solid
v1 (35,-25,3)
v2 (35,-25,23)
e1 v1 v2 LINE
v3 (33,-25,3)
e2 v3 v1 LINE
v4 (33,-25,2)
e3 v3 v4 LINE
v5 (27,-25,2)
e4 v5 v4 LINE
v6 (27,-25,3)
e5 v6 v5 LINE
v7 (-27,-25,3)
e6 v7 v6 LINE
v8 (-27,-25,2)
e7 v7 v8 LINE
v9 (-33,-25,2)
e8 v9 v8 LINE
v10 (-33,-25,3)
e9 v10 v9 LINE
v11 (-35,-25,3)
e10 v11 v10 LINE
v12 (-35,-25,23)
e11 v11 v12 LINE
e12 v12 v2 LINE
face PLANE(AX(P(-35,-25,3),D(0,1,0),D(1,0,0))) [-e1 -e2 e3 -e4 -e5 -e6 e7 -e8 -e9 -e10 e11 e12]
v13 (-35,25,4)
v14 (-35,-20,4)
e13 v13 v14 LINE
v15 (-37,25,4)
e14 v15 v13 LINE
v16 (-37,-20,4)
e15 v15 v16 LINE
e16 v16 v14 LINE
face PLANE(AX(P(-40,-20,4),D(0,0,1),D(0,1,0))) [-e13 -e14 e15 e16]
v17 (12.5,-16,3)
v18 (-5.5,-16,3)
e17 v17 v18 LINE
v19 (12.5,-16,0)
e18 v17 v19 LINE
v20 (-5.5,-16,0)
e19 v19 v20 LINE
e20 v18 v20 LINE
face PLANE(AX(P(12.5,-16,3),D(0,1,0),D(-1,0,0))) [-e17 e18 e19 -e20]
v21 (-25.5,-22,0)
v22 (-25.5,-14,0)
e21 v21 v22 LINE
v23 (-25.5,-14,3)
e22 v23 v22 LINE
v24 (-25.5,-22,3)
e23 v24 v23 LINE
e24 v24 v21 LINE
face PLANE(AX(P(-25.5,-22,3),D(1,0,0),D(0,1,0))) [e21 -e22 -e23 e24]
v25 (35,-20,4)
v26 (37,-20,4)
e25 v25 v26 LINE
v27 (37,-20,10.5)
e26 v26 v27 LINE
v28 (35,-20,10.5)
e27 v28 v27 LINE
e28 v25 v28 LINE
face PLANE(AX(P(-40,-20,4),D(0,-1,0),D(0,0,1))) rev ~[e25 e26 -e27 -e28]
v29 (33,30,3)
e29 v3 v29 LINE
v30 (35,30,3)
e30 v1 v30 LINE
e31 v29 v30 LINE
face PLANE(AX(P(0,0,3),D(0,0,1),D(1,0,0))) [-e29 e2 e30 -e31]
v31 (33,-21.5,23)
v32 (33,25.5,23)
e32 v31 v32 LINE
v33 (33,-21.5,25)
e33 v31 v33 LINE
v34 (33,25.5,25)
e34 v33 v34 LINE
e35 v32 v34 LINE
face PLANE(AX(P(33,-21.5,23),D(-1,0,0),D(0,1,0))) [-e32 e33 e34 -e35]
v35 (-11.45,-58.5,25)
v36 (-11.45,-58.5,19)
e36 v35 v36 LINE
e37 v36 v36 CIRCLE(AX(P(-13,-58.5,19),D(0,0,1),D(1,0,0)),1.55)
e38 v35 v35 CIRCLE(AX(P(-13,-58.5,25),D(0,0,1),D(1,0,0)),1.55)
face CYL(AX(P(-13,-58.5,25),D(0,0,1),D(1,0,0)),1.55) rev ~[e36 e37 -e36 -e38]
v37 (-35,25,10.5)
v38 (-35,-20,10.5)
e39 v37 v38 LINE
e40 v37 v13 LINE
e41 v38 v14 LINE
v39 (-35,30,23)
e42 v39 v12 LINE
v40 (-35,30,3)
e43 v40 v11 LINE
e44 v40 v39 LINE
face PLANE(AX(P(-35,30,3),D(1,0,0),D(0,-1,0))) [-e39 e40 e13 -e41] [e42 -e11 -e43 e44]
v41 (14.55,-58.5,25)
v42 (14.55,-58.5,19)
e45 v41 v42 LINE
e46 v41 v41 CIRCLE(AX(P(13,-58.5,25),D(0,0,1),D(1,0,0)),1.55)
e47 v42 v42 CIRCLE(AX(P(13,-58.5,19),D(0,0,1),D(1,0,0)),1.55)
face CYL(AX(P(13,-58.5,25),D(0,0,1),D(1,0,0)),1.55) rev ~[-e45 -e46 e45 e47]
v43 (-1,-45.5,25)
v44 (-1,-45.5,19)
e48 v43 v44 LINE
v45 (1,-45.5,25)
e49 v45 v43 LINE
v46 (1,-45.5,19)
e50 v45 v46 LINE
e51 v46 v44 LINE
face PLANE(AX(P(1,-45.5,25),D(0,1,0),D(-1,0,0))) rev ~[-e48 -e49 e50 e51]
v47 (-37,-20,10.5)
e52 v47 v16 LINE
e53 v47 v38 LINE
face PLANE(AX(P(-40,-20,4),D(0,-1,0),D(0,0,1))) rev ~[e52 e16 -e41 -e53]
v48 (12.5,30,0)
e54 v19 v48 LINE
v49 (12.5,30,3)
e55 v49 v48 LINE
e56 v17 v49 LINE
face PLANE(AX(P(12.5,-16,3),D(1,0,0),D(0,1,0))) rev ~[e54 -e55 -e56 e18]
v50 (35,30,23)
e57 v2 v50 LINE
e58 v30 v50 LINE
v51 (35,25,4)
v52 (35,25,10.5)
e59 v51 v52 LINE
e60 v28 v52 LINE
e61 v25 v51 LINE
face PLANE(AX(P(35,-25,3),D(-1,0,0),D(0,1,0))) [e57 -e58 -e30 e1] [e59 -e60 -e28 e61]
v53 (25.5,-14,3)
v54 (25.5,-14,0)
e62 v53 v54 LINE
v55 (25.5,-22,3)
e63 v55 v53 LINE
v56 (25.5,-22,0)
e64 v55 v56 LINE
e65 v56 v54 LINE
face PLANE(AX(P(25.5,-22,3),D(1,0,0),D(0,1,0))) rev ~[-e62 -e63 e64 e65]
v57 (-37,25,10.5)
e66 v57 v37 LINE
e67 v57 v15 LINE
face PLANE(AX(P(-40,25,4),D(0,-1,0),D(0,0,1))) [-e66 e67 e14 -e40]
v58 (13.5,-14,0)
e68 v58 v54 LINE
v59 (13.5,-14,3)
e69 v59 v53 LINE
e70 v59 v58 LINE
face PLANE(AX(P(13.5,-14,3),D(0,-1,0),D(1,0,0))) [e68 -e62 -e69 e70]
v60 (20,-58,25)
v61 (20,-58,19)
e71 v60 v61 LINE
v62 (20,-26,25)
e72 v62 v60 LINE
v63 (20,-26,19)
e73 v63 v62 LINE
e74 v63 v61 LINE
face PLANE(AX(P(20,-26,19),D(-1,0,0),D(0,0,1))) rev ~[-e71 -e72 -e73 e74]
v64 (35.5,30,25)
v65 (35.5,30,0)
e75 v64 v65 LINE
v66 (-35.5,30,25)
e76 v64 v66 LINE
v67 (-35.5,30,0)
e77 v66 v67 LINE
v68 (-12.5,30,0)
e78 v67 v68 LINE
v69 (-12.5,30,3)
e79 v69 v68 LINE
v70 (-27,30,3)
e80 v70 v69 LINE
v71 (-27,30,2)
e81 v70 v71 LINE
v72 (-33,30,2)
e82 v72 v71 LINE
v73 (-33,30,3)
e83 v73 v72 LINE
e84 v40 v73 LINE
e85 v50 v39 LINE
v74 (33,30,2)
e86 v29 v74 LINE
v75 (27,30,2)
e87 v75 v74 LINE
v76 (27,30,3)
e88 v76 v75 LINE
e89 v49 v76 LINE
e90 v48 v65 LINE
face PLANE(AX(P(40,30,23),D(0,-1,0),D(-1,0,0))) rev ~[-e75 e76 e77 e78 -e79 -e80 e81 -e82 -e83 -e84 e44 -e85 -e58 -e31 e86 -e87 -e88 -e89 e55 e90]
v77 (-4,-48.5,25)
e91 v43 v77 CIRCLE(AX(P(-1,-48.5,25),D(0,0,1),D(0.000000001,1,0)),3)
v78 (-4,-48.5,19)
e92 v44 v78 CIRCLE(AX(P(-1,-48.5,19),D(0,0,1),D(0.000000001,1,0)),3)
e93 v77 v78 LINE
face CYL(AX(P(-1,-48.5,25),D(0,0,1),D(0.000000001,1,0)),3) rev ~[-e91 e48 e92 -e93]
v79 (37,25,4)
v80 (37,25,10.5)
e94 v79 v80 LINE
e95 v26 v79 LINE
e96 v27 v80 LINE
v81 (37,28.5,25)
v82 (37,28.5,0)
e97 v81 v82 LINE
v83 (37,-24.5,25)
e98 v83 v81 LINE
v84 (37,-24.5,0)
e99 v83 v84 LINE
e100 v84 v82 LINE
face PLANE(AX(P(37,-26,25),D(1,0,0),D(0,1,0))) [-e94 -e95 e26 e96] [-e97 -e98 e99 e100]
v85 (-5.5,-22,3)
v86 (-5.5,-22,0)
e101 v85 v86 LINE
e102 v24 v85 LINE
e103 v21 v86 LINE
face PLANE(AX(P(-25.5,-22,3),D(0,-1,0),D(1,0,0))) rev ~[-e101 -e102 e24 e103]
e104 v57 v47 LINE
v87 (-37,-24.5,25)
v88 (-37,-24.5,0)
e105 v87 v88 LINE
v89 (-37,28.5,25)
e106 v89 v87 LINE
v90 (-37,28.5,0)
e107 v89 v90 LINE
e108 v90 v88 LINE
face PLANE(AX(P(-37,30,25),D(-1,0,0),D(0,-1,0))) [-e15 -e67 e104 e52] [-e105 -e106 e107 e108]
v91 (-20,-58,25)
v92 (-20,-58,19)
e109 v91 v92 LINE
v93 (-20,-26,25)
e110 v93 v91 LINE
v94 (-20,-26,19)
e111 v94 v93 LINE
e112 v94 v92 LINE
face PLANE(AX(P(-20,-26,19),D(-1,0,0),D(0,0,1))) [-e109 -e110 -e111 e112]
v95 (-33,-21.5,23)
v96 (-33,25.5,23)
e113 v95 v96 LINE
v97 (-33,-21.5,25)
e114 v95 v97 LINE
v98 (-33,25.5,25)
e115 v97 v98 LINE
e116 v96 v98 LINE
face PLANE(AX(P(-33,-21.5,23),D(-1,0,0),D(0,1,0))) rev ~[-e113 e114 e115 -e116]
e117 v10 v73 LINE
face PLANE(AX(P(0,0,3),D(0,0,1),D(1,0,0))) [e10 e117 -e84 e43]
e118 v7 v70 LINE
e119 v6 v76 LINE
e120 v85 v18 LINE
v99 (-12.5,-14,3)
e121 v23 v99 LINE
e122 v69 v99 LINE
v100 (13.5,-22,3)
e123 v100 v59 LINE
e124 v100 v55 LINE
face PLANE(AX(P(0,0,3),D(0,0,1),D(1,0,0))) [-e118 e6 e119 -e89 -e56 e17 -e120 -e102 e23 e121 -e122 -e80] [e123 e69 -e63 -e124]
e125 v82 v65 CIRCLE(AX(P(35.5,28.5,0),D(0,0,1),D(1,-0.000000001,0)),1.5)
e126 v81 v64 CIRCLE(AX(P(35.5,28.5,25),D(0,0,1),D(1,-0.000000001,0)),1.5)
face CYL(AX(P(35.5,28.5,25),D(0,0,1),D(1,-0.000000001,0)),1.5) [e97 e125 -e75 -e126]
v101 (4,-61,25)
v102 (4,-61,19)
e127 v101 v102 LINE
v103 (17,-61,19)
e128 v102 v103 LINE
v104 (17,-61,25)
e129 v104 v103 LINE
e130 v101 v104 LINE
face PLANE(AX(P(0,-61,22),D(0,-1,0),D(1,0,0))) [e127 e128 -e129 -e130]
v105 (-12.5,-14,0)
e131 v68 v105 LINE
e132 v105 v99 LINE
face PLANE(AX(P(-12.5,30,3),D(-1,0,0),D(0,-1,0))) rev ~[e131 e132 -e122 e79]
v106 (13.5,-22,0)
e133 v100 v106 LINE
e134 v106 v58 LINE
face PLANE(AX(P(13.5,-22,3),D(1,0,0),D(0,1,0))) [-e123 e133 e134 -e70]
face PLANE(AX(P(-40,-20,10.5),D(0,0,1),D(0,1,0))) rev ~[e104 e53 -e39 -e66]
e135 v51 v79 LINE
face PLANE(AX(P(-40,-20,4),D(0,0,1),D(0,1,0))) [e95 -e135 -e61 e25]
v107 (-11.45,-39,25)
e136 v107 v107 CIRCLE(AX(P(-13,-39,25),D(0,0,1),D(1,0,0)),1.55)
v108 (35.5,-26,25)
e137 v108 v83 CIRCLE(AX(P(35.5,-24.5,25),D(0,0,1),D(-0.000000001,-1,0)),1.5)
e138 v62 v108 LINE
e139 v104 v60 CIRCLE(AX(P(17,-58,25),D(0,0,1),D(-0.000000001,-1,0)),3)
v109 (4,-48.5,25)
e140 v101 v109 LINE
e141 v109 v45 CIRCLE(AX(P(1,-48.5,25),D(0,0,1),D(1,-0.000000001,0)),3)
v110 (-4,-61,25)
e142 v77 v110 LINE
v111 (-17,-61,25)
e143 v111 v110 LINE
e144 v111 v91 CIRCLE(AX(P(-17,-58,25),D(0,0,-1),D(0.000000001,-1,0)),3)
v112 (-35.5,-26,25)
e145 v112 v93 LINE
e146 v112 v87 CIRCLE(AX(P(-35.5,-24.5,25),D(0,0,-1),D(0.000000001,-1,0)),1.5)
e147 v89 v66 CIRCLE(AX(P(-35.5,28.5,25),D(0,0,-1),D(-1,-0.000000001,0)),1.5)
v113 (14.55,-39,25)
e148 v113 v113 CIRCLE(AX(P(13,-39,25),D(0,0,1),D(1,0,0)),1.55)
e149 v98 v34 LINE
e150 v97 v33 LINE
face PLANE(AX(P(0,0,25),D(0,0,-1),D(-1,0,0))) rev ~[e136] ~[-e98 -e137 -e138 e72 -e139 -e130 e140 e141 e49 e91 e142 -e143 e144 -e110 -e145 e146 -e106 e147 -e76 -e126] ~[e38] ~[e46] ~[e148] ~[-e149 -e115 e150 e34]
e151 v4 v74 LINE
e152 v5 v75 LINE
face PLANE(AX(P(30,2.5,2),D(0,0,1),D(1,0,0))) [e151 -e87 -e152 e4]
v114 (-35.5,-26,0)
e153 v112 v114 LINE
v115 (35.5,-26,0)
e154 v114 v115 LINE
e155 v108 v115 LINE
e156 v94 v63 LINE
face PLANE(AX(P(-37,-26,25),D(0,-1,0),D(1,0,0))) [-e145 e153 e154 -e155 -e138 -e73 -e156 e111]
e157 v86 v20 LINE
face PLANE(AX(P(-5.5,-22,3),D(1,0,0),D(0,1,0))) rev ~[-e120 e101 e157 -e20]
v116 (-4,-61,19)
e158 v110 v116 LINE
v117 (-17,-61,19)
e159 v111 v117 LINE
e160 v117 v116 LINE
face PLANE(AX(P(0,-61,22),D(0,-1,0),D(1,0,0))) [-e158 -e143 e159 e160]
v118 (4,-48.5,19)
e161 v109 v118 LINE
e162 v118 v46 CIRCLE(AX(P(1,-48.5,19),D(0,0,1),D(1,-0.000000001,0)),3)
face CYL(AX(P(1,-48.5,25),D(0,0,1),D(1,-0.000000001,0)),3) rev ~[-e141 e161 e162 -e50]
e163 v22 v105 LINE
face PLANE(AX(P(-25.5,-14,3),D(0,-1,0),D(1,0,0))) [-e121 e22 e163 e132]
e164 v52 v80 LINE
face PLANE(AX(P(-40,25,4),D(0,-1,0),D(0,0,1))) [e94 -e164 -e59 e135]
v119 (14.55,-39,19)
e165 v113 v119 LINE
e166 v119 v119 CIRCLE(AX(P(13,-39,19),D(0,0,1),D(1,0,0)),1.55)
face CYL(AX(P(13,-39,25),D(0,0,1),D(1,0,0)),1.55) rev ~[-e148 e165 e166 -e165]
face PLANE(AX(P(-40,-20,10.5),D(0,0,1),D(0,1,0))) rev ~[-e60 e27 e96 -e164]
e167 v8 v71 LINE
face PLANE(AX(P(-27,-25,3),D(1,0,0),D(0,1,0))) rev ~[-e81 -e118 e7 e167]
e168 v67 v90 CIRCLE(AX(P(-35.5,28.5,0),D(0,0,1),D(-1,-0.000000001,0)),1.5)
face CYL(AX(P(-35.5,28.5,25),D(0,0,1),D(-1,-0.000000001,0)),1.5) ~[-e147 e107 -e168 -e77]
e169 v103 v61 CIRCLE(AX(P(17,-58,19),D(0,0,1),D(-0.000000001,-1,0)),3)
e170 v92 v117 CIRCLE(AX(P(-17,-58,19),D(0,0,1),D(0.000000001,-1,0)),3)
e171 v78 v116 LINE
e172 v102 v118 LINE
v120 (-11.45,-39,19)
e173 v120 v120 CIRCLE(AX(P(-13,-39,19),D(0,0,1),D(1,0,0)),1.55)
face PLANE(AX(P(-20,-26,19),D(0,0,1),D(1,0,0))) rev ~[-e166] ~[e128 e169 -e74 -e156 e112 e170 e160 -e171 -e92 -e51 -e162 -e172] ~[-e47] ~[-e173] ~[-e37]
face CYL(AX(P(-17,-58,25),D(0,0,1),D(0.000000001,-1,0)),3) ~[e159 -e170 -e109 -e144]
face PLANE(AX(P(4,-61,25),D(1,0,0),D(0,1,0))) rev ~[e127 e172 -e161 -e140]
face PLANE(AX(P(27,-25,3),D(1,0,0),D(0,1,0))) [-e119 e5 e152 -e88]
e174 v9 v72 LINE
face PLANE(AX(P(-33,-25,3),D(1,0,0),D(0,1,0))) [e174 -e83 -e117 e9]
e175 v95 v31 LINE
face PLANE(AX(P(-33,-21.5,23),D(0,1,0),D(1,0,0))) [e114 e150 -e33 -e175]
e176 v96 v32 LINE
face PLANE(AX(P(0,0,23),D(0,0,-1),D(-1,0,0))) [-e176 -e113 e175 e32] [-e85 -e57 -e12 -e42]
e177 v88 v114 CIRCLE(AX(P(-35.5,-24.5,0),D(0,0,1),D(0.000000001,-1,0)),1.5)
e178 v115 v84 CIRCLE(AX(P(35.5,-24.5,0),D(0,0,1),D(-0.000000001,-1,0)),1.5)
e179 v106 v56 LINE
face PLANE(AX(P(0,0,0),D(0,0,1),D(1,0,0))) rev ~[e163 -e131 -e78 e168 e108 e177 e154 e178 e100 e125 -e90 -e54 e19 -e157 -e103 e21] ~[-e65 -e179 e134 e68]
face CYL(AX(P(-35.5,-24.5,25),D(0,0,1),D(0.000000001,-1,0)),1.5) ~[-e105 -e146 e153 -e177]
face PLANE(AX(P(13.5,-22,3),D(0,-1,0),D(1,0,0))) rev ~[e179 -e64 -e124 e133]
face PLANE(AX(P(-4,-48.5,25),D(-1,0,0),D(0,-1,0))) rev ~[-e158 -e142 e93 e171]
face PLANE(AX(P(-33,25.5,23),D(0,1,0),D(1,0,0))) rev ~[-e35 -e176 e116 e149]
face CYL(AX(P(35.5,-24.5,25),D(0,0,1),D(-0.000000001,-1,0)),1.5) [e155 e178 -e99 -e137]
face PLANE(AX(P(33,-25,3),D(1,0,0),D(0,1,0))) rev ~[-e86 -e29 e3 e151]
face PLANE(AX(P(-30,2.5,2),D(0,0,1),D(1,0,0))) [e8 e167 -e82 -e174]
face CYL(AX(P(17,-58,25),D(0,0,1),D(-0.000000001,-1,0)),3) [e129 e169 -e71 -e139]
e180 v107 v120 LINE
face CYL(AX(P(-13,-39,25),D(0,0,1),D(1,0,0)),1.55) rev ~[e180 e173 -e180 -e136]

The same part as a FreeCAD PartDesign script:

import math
import FreeCAD as App
import Part
import Sketcher

doc = App.newDocument("Part")
body = doc.addObject("PartDesign::Body", "Body")

sketch1 = body.newObject("Sketcher::SketchObject", "Sketch")
sketch1.AttachmentSupport = (doc.getObject("XY_Plane"), [""])
sketch1.MapMode = "FlatFace"
sketch1.addGeometry([
    Part.LineSegment(App.Vector(-40, 30, 0), App.Vector(-40, -30, 0)),
    Part.LineSegment(App.Vector(-40, -30, 0), App.Vector(40, -30, 0)),
    Part.LineSegment(App.Vector(40, -30, 0), App.Vector(40, 30, 0)),
    Part.LineSegment(App.Vector(40, 30, 0), App.Vector(-40, 30, 0)),
], False)
sketch1.addConstraint([
    Sketcher.Constraint("Coincident", 0, 2, 1, 1),
    Sketcher.Constraint("Coincident", 1, 2, 2, 1),
    Sketcher.Constraint("Coincident", 2, 2, 3, 1),
    Sketcher.Constraint("Coincident", 3, 2, 0, 1),
    Sketcher.Constraint("Vertical", 0),
    Sketcher.Constraint("Horizontal", 1),
    Sketcher.Constraint("Vertical", 2),
    Sketcher.Constraint("Horizontal", 3),
    Sketcher.Constraint("Symmetric", 0, 2, 2, 2, -1, 1),
    Sketcher.Constraint("DistanceX", 1, 1, 1, 2, 80.0),
    Sketcher.Constraint("DistanceY", 0, 2, 0, 1, 60.0),
])
pad1 = body.newObject("PartDesign::Pad", "Pad")
pad1.Profile = sketch1
pad1.Length = 3

sketch2 = body.newObject("Sketcher::SketchObject", "Sketch001")
sketch2.AttachmentSupport = (doc.getObject("XY_Plane"), [""])
sketch2.MapMode = "FlatFace"
sketch2.AttachmentOffset = App.Placement(App.Vector(0, 0, 3), App.Rotation())
sketch2.addGeometry([
    Part.LineSegment(App.Vector(-12.5, 30, 0), App.Vector(-12.5, -16, 0)),
    Part.LineSegment(App.Vector(-12.5, -16, 0), App.Vector(12.5, -16, 0)),
    Part.LineSegment(App.Vector(12.5, -16, 0), App.Vector(12.5, 30, 0)),
    Part.LineSegment(App.Vector(12.5, 30, 0), App.Vector(-12.5, 30, 0)),
], False)
sketch2.addConstraint([
    Sketcher.Constraint("Coincident", 0, 2, 1, 1),
    Sketcher.Constraint("Coincident", 1, 2, 2, 1),
    Sketcher.Constraint("Coincident", 2, 2, 3, 1),
    Sketcher.Constraint("Coincident", 3, 2, 0, 1),
    Sketcher.Constraint("Vertical", 0),
    Sketcher.Constraint("Horizontal", 1),
    Sketcher.Constraint("Vertical", 2),
    Sketcher.Constraint("Horizontal", 3),
    Sketcher.Constraint("DistanceX", 1, 1, 1, 2, 25.0),
    Sketcher.Constraint("DistanceY", 0, 2, 0, 1, 46.0),
    Sketcher.Constraint("DistanceY", 0, 2, -1, 1, 16.0),
    Sketcher.Constraint("DistanceX", 0, 2, -1, 1, 12.5),
])
pocket1 = body.newObject("PartDesign::Pocket", "Pocket")
pocket1.Profile = sketch2
pocket1.Length = 3

sketch3 = body.newObject("Sketcher::SketchObject", "Sketch002")
sketch3.AttachmentSupport = (doc.getObject("XY_Plane"), [""])
sketch3.MapMode = "FlatFace"
sketch3.AttachmentOffset = App.Placement(App.Vector(0, 0, 3), App.Rotation())
sketch3.addGeometry([
    Part.LineSegment(App.Vector(-35, 30, 0), App.Vector(-40, 30, 0)),
    Part.LineSegment(App.Vector(-40, 30, 0), App.Vector(-40, -30, 0)),
    Part.LineSegment(App.Vector(-40, -30, 0), App.Vector(40, -30, 0)),
    Part.LineSegment(App.Vector(40, -30, 0), App.Vector(40, 30, 0)),
    Part.LineSegment(App.Vector(40, 30, 0), App.Vector(35, 30, 0)),
    Part.LineSegment(App.Vector(35, 30, 0), App.Vector(35, -25, 0)),
    Part.LineSegment(App.Vector(35, -25, 0), App.Vector(-35, -25, 0)),
    Part.LineSegment(App.Vector(-35, -25, 0), App.Vector(-35, 30, 0)),
], False)
sketch3.addConstraint([
    Sketcher.Constraint("Coincident", 0, 2, 1, 1),
    Sketcher.Constraint("Coincident", 1, 2, 2, 1),
    Sketcher.Constraint("Coincident", 2, 2, 3, 1),
    Sketcher.Constraint("Coincident", 3, 2, 4, 1),
    Sketcher.Constraint("Coincident", 4, 2, 5, 1),
    Sketcher.Constraint("Coincident", 5, 2, 6, 1),
    Sketcher.Constraint("Coincident", 6, 2, 7, 1),
    Sketcher.Constraint("Coincident", 7, 2, 0, 1),
    Sketcher.Constraint("Horizontal", 0),
    Sketcher.Constraint("Vertical", 1),
    Sketcher.Constraint("Horizontal", 2),
    Sketcher.Constraint("Vertical", 3),
    Sketcher.Constraint("Horizontal", 4),
    Sketcher.Constraint("Vertical", 5),
    Sketcher.Constraint("Horizontal", 6),
    Sketcher.Constraint("Vertical", 7),
    Sketcher.Constraint("Symmetric", 0, 2, 2, 2, -1, 1),
    Sketcher.Constraint("Symmetric", 4, 2, 7, 2, -2),
    Sketcher.Constraint("DistanceX", 0, 2, 0, 1, 5.0),
    Sketcher.Constraint("DistanceX", 2, 1, 2, 2, 80.0),
    Sketcher.Constraint("DistanceY", 1, 2, 1, 1, 60.0),
    Sketcher.Constraint("DistanceY", 5, 2, 5, 1, 55.0),
])
pad2 = body.newObject("PartDesign::Pad", "Pad001")
pad2.Profile = sketch3
pad2.Length = 20

sketch4 = body.newObject("Sketcher::SketchObject", "Sketch003")
sketch4.AttachmentSupport = (doc.getObject("YZ_Plane"), [""])
sketch4.MapMode = "FlatFace"
sketch4.AttachmentOffset = App.Placement(App.Vector(0, 0, -40), App.Rotation())
sketch4.addGeometry([
    Part.LineSegment(App.Vector(25, 4, 0), App.Vector(-20, 4, 0)),
    Part.LineSegment(App.Vector(-20, 4, 0), App.Vector(-20, 10.5, 0)),
    Part.LineSegment(App.Vector(-20, 10.5, 0), App.Vector(25, 10.5, 0)),
    Part.LineSegment(App.Vector(25, 10.5, 0), App.Vector(25, 4, 0)),
], False)
sketch4.addConstraint([
    Sketcher.Constraint("Coincident", 0, 2, 1, 1),
    Sketcher.Constraint("Coincident", 1, 2, 2, 1),
    Sketcher.Constraint("Coincident", 2, 2, 3, 1),
    Sketcher.Constraint("Coincident", 3, 2, 0, 1),
    Sketcher.Constraint("Horizontal", 0),
    Sketcher.Constraint("Vertical", 1),
    Sketcher.Constraint("Horizontal", 2),
    Sketcher.Constraint("Vertical", 3),
    Sketcher.Constraint("DistanceX", 0, 2, 0, 1, 45.0),
    Sketcher.Constraint("DistanceY", 1, 1, 1, 2, 6.5),
    Sketcher.Constraint("DistanceX", 0, 2, -1, 1, 20.0),
    Sketcher.Constraint("DistanceY", -1, 1, 0, 2, 4.0),
])
pocket2 = body.newObject("PartDesign::Pocket", "Pocket001")
pocket2.Profile = sketch4
pocket2.Type = "ThroughAll"
pocket2.Reversed = True

sketch5 = body.newObject("Sketcher::SketchObject", "Sketch004")
sketch5.AttachmentSupport = (doc.getObject("XY_Plane"), [""])
sketch5.MapMode = "FlatFace"
sketch5.AttachmentOffset = App.Placement(App.Vector(0, 0, 3), App.Rotation())
sketch5.addGeometry([
    Part.LineSegment(App.Vector(-33, 30, 0), App.Vector(-33, -25, 0)),
    Part.LineSegment(App.Vector(-33, -25, 0), App.Vector(-27, -25, 0)),
    Part.LineSegment(App.Vector(-27, -25, 0), App.Vector(-27, 30, 0)),
    Part.LineSegment(App.Vector(-27, 30, 0), App.Vector(-33, 30, 0)),
    Part.LineSegment(App.Vector(27, 30, 0), App.Vector(27, -25, 0)),
    Part.LineSegment(App.Vector(27, -25, 0), App.Vector(33, -25, 0)),
    Part.LineSegment(App.Vector(33, -25, 0), App.Vector(33, 30, 0)),
    Part.LineSegment(App.Vector(33, 30, 0), App.Vector(27, 30, 0)),
], False)
sketch5.addConstraint([
    Sketcher.Constraint("Coincident", 0, 2, 1, 1),
    Sketcher.Constraint("Coincident", 1, 2, 2, 1),
    Sketcher.Constraint("Coincident", 2, 2, 3, 1),
    Sketcher.Constraint("Coincident", 3, 2, 0, 1),
    Sketcher.Constraint("Coincident", 4, 2, 5, 1),
    Sketcher.Constraint("Coincident", 5, 2, 6, 1),
    Sketcher.Constraint("Coincident", 6, 2, 7, 1),
    Sketcher.Constraint("Coincident", 7, 2, 4, 1),
    Sketcher.Constraint("Vertical", 0),
    Sketcher.Constraint("Horizontal", 1),
    Sketcher.Constraint("Vertical", 2),
    Sketcher.Constraint("Horizontal", 3),
    Sketcher.Constraint("Vertical", 4),
    Sketcher.Constraint("Horizontal", 5),
    Sketcher.Constraint("Vertical", 6),
    Sketcher.Constraint("Horizontal", 7),
    Sketcher.Constraint("Symmetric", 1, 2, 4, 2, -2),
    Sketcher.Constraint("Symmetric", 3, 2, 6, 2, -2),
    Sketcher.Constraint("DistanceX", 1, 1, 1, 2, 6.0),
    Sketcher.Constraint("DistanceY", 0, 2, 0, 1, 55.0),
    Sketcher.Constraint("DistanceX", 0, 2, -1, 1, 33.0),
    Sketcher.Constraint("DistanceY", 0, 2, -1, 1, 25.0),
])
pocket3 = body.newObject("PartDesign::Pocket", "Pocket002")
pocket3.Profile = sketch5
pocket3.Length = 1

sketch6 = body.newObject("Sketcher::SketchObject", "Sketch005")
sketch6.AttachmentSupport = (doc.getObject("XY_Plane"), [""])
sketch6.MapMode = "FlatFace"
sketch6.AttachmentOffset = App.Placement(App.Vector(0, 0, 3), App.Rotation())
sketch6.addGeometry([
    Part.LineSegment(App.Vector(-25.5, -14, 0), App.Vector(-25.5, -22, 0)),
    Part.LineSegment(App.Vector(-25.5, -22, 0), App.Vector(-5.5, -22, 0)),
    Part.LineSegment(App.Vector(-5.5, -22, 0), App.Vector(-5.5, -14, 0)),
    Part.LineSegment(App.Vector(-5.5, -14, 0), App.Vector(-25.5, -14, 0)),
    Part.LineSegment(App.Vector(13.5, -14, 0), App.Vector(13.5, -22, 0)),
    Part.LineSegment(App.Vector(13.5, -22, 0), App.Vector(25.5, -22, 0)),
    Part.LineSegment(App.Vector(25.5, -22, 0), App.Vector(25.5, -14, 0)),
    Part.LineSegment(App.Vector(25.5, -14, 0), App.Vector(13.5, -14, 0)),
], False)
sketch6.addConstraint([
    Sketcher.Constraint("Coincident", 0, 2, 1, 1),
    Sketcher.Constraint("Coincident", 1, 2, 2, 1),
    Sketcher.Constraint("Coincident", 2, 2, 3, 1),
    Sketcher.Constraint("Coincident", 3, 2, 0, 1),
    Sketcher.Constraint("Coincident", 4, 2, 5, 1),
    Sketcher.Constraint("Coincident", 5, 2, 6, 1),
    Sketcher.Constraint("Coincident", 6, 2, 7, 1),
    Sketcher.Constraint("Coincident", 7, 2, 4, 1),
    Sketcher.Constraint("Vertical", 0),
    Sketcher.Constraint("Horizontal", 1),
    Sketcher.Constraint("Vertical", 2),
    Sketcher.Constraint("Horizontal", 3),
    Sketcher.Constraint("Vertical", 4),
    Sketcher.Constraint("Horizontal", 5),
    Sketcher.Constraint("Vertical", 6),
    Sketcher.Constraint("Horizontal", 7),
    Sketcher.Constraint("Symmetric", 0, 2, 5, 2, -2),
    Sketcher.Constraint("Horizontal", 3, 2, 6, 2),
    Sketcher.Constraint("DistanceX", 1, 1, 1, 2, 20.0),
    Sketcher.Constraint("DistanceX", 5, 1, 5, 2, 12.0),
    Sketcher.Constraint("DistanceY", 0, 2, 0, 1, 8.0),
    Sketcher.Constraint("DistanceY", 0, 2, -1, 1, 22.0),
    Sketcher.Constraint("DistanceX", 1, 2, 4, 2, 19.0),
])
pocket4 = body.newObject("PartDesign::Pocket", "Pocket003")
pocket4.Profile = sketch6
pocket4.Length = 3

sketch7 = body.newObject("Sketcher::SketchObject", "Sketch006")
sketch7.AttachmentSupport = (doc.getObject("XY_Plane"), [""])
sketch7.MapMode = "FlatFace"
sketch7.AttachmentOffset = App.Placement(App.Vector(0, 0, 23), App.Rotation())
sketch7.addGeometry([
    Part.LineSegment(App.Vector(40, 30, 0), App.Vector(-40, 30, 0)),
    Part.LineSegment(App.Vector(-40, 30, 0), App.Vector(-40, -30, 0)),
    Part.LineSegment(App.Vector(-40, -30, 0), App.Vector(40, -30, 0)),
    Part.LineSegment(App.Vector(40, -30, 0), App.Vector(40, 30, 0)),
    Part.LineSegment(App.Vector(-33, -21.5, 0), App.Vector(-33, 25.5, 0)),
    Part.LineSegment(App.Vector(-33, 25.5, 0), App.Vector(33, 25.5, 0)),
    Part.LineSegment(App.Vector(33, 25.5, 0), App.Vector(33, -21.5, 0)),
    Part.LineSegment(App.Vector(33, -21.5, 0), App.Vector(-33, -21.5, 0)),
], False)
sketch7.addConstraint([
    Sketcher.Constraint("Coincident", 0, 2, 1, 1),
    Sketcher.Constraint("Coincident", 1, 2, 2, 1),
    Sketcher.Constraint("Coincident", 2, 2, 3, 1),
    Sketcher.Constraint("Coincident", 3, 2, 0, 1),
    Sketcher.Constraint("Coincident", 4, 2, 5, 1),
    Sketcher.Constraint("Coincident", 5, 2, 6, 1),
    Sketcher.Constraint("Coincident", 6, 2, 7, 1),
    Sketcher.Constraint("Coincident", 7, 2, 4, 1),
    Sketcher.Constraint("Horizontal", 0),
    Sketcher.Constraint("Vertical", 1),
    Sketcher.Constraint("Horizontal", 2),
    Sketcher.Constraint("Vertical", 3),
    Sketcher.Constraint("Vertical", 4),
    Sketcher.Constraint("Horizontal", 5),
    Sketcher.Constraint("Vertical", 6),
    Sketcher.Constraint("Horizontal", 7),
    Sketcher.Constraint("Symmetric", 0, 2, 2, 2, -1, 1),
    Sketcher.Constraint("DistanceX", 0, 2, 0, 1, 80.0),
    Sketcher.Constraint("DistanceX", 5, 1, 5, 2, 66.0),
    Sketcher.Constraint("DistanceY", 1, 2, 1, 1, 60.0),
    Sketcher.Constraint("DistanceY", 4, 1, 4, 2, 47.0),
    Sketcher.Constraint("DistanceX", 4, 2, -1, 1, 33.0),
    Sketcher.Constraint("DistanceY", -1, 1, 4, 2, 25.5),
])
pad3 = body.newObject("PartDesign::Pad", "Pad002")
pad3.Profile = sketch7
pad3.Length = 2

sketch8 = body.newObject("Sketcher::SketchObject", "Sketch007")
sketch8.AttachmentSupport = (doc.getObject("XY_Plane"), [""])
sketch8.MapMode = "FlatFace"
sketch8.AttachmentOffset = App.Placement(App.Vector(0, 0, 25), App.Rotation())
sketch8.addGeometry([
    Part.LineSegment(App.Vector(-37, 30, 0), App.Vector(-40, 30, 0)),
    Part.LineSegment(App.Vector(-40, 30, 0), App.Vector(-40, -30, 0)),
    Part.LineSegment(App.Vector(-40, -30, 0), App.Vector(40, -30, 0)),
    Part.LineSegment(App.Vector(40, -30, 0), App.Vector(40, 30, 0)),
    Part.LineSegment(App.Vector(40, 30, 0), App.Vector(37, 30, 0)),
    Part.LineSegment(App.Vector(37, 30, 0), App.Vector(37, -26, 0)),
    Part.LineSegment(App.Vector(37, -26, 0), App.Vector(-37, -26, 0)),
    Part.LineSegment(App.Vector(-37, -26, 0), App.Vector(-37, 30, 0)),
], False)
sketch8.addConstraint([
    Sketcher.Constraint("Coincident", 0, 2, 1, 1),
    Sketcher.Constraint("Coincident", 1, 2, 2, 1),
    Sketcher.Constraint("Coincident", 2, 2, 3, 1),
    Sketcher.Constraint("Coincident", 3, 2, 4, 1),
    Sketcher.Constraint("Coincident", 4, 2, 5, 1),
    Sketcher.Constraint("Coincident", 5, 2, 6, 1),
    Sketcher.Constraint("Coincident", 6, 2, 7, 1),
    Sketcher.Constraint("Coincident", 7, 2, 0, 1),
    Sketcher.Constraint("Horizontal", 0),
    Sketcher.Constraint("Vertical", 1),
    Sketcher.Constraint("Horizontal", 2),
    Sketcher.Constraint("Vertical", 3),
    Sketcher.Constraint("Horizontal", 4),
    Sketcher.Constraint("Vertical", 5),
    Sketcher.Constraint("Horizontal", 6),
    Sketcher.Constraint("Vertical", 7),
    Sketcher.Constraint("Symmetric", 0, 2, 2, 2, -1, 1),
    Sketcher.Constraint("Symmetric", 4, 2, 7, 2, -2),
    Sketcher.Constraint("DistanceX", 0, 2, 0, 1, 3.0),
    Sketcher.Constraint("DistanceX", 2, 1, 2, 2, 80.0),
    Sketcher.Constraint("DistanceY", 1, 2, 1, 1, 60.0),
    Sketcher.Constraint("DistanceY", 5, 2, 5, 1, 56.0),
])
pocket5 = body.newObject("PartDesign::Pocket", "Pocket004")
pocket5.Profile = sketch8
pocket5.Type = "ThroughAll"

sketch9 = body.newObject("Sketcher::SketchObject", "Sketch008")
sketch9.AttachmentSupport = (doc.getObject("XY_Plane"), [""])
sketch9.MapMode = "FlatFace"
sketch9.AttachmentOffset = App.Placement(App.Vector(0, 0, 25), App.Rotation())
sketch9.addGeometry([
    Part.LineSegment(App.Vector(-35.5, 30, 0), App.Vector(-37, 30, 0)),
    Part.LineSegment(App.Vector(-37, 30, 0), App.Vector(-37, 28.5, 0)),
    Part.ArcOfCircle(Part.Circle(App.Vector(-35.5, 28.5, 0), App.Vector(0, 0, 1), 1.5), math.radians(90), math.radians(180)),
    Part.LineSegment(App.Vector(-37, -24.5, 0), App.Vector(-37, -26, 0)),
    Part.LineSegment(App.Vector(-37, -26, 0), App.Vector(-35.5, -26, 0)),
    Part.ArcOfCircle(Part.Circle(App.Vector(-35.5, -24.5, 0), App.Vector(0, 0, 1), 1.5), math.radians(180), math.radians(270)),
    Part.LineSegment(App.Vector(37, -26, 0), App.Vector(37, -24.5, 0)),
    Part.ArcOfCircle(Part.Circle(App.Vector(35.5, -24.5, 0), App.Vector(0, 0, 1), 1.5), math.radians(-90), math.radians(0)),
    Part.LineSegment(App.Vector(35.5, -26, 0), App.Vector(37, -26, 0)),
    Part.LineSegment(App.Vector(37, 30, 0), App.Vector(35.5, 30, 0)),
    Part.ArcOfCircle(Part.Circle(App.Vector(35.5, 28.5, 0), App.Vector(0, 0, 1), 1.5), math.radians(0), math.radians(90)),
    Part.LineSegment(App.Vector(37, 28.5, 0), App.Vector(37, 30, 0)),
], False)
sketch9.addConstraint([
    Sketcher.Constraint("Coincident", 0, 2, 1, 1),
    Sketcher.Constraint("Tangent", 1, 2, 2, 2),
    Sketcher.Constraint("Tangent", 2, 1, 0, 1),
    Sketcher.Constraint("Coincident", 3, 2, 4, 1),
    Sketcher.Constraint("Tangent", 4, 2, 5, 2),
    Sketcher.Constraint("Tangent", 5, 1, 3, 1),
    Sketcher.Constraint("Tangent", 6, 2, 7, 2),
    Sketcher.Constraint("Tangent", 7, 1, 8, 1),
    Sketcher.Constraint("Coincident", 8, 2, 6, 1),
    Sketcher.Constraint("Tangent", 9, 2, 10, 2),
    Sketcher.Constraint("Tangent", 10, 1, 11, 1),
    Sketcher.Constraint("Coincident", 11, 2, 9, 1),
    Sketcher.Constraint("Horizontal", 0),
    Sketcher.Constraint("Vertical", 1),
    Sketcher.Constraint("Vertical", 3),
    Sketcher.Constraint("Horizontal", 4),
    Sketcher.Constraint("Vertical", 6),
    Sketcher.Constraint("Horizontal", 8),
    Sketcher.Constraint("Horizontal", 9),
    Sketcher.Constraint("Vertical", 11),
    Sketcher.Constraint("Equal", 2, 5),
    Sketcher.Constraint("Equal", 5, 7),
    Sketcher.Constraint("Equal", 7, 10),
    Sketcher.Constraint("Symmetric", 5, 3, 7, 3, -2),
    Sketcher.Constraint("Symmetric", 2, 3, 10, 3, -2),
    Sketcher.Constraint("Vertical", 2, 3, 5, 3),
    Sketcher.Constraint("Radius", 2, 1.5),
    Sketcher.Constraint("DistanceX", 0, 2, -1, 1, 37.0),
    Sketcher.Constraint("DistanceY", -1, 1, 0, 2, 30.0),
    Sketcher.Constraint("DistanceY", 3, 2, -1, 1, 26.0),
])
pocket6 = body.newObject("PartDesign::Pocket", "Pocket005")
pocket6.Profile = sketch9
pocket6.Type = "ThroughAll"

sketch10 = body.newObject("Sketcher::SketchObject", "Sketch009")
sketch10.AttachmentSupport = (doc.getObject("XZ_Plane"), [""])
sketch10.MapMode = "FlatFace"
sketch10.AttachmentOffset = App.Placement(App.Vector(0, 0, 26), App.Rotation())
sketch10.addGeometry([
    Part.LineSegment(App.Vector(-20, 25, 0), App.Vector(-20, 19, 0)),
    Part.LineSegment(App.Vector(-20, 19, 0), App.Vector(20, 19, 0)),
    Part.LineSegment(App.Vector(20, 19, 0), App.Vector(20, 25, 0)),
    Part.LineSegment(App.Vector(20, 25, 0), App.Vector(-20, 25, 0)),
], False)
sketch10.addConstraint([
    Sketcher.Constraint("Coincident", 0, 2, 1, 1),
    Sketcher.Constraint("Coincident", 1, 2, 2, 1),
    Sketcher.Constraint("Coincident", 2, 2, 3, 1),
    Sketcher.Constraint("Coincident", 3, 2, 0, 1),
    Sketcher.Constraint("Vertical", 0),
    Sketcher.Constraint("Horizontal", 1),
    Sketcher.Constraint("Vertical", 2),
    Sketcher.Constraint("Horizontal", 3),
    Sketcher.Constraint("DistanceX", 1, 1, 1, 2, 40.0),
    Sketcher.Constraint("DistanceY", 0, 2, 0, 1, 6.0),
    Sketcher.Constraint("DistanceX", 0, 2, -1, 1, 20.0),
    Sketcher.Constraint("DistanceY", -1, 1, 0, 2, 19.0),
])
pad4 = body.newObject("PartDesign::Pad", "Pad003")
pad4.Profile = sketch10
pad4.Length = 35

sketch11 = body.newObject("Sketcher::SketchObject", "Sketch010")
sketch11.AttachmentSupport = (doc.getObject("XY_Plane"), [""])
sketch11.MapMode = "FlatFace"
sketch11.AttachmentOffset = App.Placement(App.Vector(0, 0, 25), App.Rotation())
sketch11.addGeometry([
    Part.Circle(App.Vector(-13, -39, 0), App.Vector(0, 0, 1), 1.55),
    Part.Circle(App.Vector(13, -39, 0), App.Vector(0, 0, 1), 1.55),
    Part.Circle(App.Vector(-13, -58.5, 0), App.Vector(0, 0, 1), 1.55),
    Part.Circle(App.Vector(13, -58.5, 0), App.Vector(0, 0, 1), 1.55),
    Part.LineSegment(App.Vector(-4, -61, 0), App.Vector(4, -61, 0)),
    Part.LineSegment(App.Vector(4, -61, 0), App.Vector(4, -48.5, 0)),
    Part.ArcOfCircle(Part.Circle(App.Vector(1, -48.5, 0), App.Vector(0, 0, 1), 3), math.radians(0), math.radians(90)),
    Part.LineSegment(App.Vector(1, -45.5, 0), App.Vector(-1, -45.5, 0)),
    Part.ArcOfCircle(Part.Circle(App.Vector(-1, -48.5, 0), App.Vector(0, 0, 1), 3), math.radians(90), math.radians(180)),
    Part.LineSegment(App.Vector(-4, -48.5, 0), App.Vector(-4, -61, 0)),
    Part.LineSegment(App.Vector(20, -61, 0), App.Vector(20, -58, 0)),
    Part.ArcOfCircle(Part.Circle(App.Vector(17, -58, 0), App.Vector(0, 0, 1), 3), math.radians(-90), math.radians(0)),
    Part.LineSegment(App.Vector(17, -61, 0), App.Vector(20, -61, 0)),
    Part.LineSegment(App.Vector(-20, -58, 0), App.Vector(-20, -61, 0)),
    Part.LineSegment(App.Vector(-20, -61, 0), App.Vector(-17, -61, 0)),
    Part.ArcOfCircle(Part.Circle(App.Vector(-17, -58, 0), App.Vector(0, 0, 1), 3), math.radians(180), math.radians(270)),
], False)
sketch11.addConstraint([
    Sketcher.Constraint("Coincident", 4, 2, 5, 1),
    Sketcher.Constraint("Tangent", 5, 2, 6, 1),
    Sketcher.Constraint("Tangent", 6, 2, 7, 1),
    Sketcher.Constraint("Tangent", 7, 2, 8, 1),
    Sketcher.Constraint("Tangent", 8, 2, 9, 1),
    Sketcher.Constraint("Coincident", 9, 2, 4, 1),
    Sketcher.Constraint("Tangent", 10, 2, 11, 2),
    Sketcher.Constraint("Tangent", 11, 1, 12, 1),
    Sketcher.Constraint("Coincident", 12, 2, 10, 1),
    Sketcher.Constraint("Coincident", 13, 2, 14, 1),
    Sketcher.Constraint("Tangent", 14, 2, 15, 2),
    Sketcher.Constraint("Tangent", 15, 1, 13, 1),
    Sketcher.Constraint("Horizontal", 4),
    Sketcher.Constraint("Vertical", 5),
    Sketcher.Constraint("Horizontal", 7),
    Sketcher.Constraint("Vertical", 9),
    Sketcher.Constraint("Vertical", 10),
    Sketcher.Constraint("Horizontal", 12),
    Sketcher.Constraint("Vertical", 13),
    Sketcher.Constraint("Horizontal", 14),
    Sketcher.Constraint("Equal", 0, 1),
    Sketcher.Constraint("Equal", 1, 2),
    Sketcher.Constraint("Equal", 2, 3),
    Sketcher.Constraint("Equal", 6, 8),
    Sketcher.Constraint("Equal", 8, 11),
    Sketcher.Constraint("Equal", 11, 15),
    Sketcher.Constraint("Symmetric", 0, 3, 1, 3, -2),
    Sketcher.Constraint("Symmetric", 2, 3, 3, 3, -2),
    Sketcher.Constraint("Symmetric", 11, 3, 15, 3, -2),
    Sketcher.Constraint("Horizontal", 9, 2, 11, 1),
    Sketcher.Constraint("Vertical", 0, 3, 2, 3),
    Sketcher.Constraint("Radius", 6, 3.0),
    Sketcher.Constraint("Diameter", 0, 3.1),
    Sketcher.Constraint("DistanceX", 4, 1, 4, 2, 8.0),
    Sketcher.Constraint("DistanceY", 5, 1, 5, 2, 12.5),
    Sketcher.Constraint("DistanceX", 0, 3, -1, 1, 13.0),
    Sketcher.Constraint("DistanceY", 0, 3, -1, 1, 39.0),
    Sketcher.Constraint("DistanceX", -1, 1, 6, 3, 1.0),
    Sketcher.Constraint("DistanceX", -1, 1, 11, 3, 17.0),
    Sketcher.Constraint("DistanceY", 11, 3, -1, 1, 58.0),
    Sketcher.Constraint("DistanceY", 3, 3, 6, 3, 10.0),
])
pocket7 = body.newObject("PartDesign::Pocket", "Pocket006")
pocket7.Profile = sketch11
pocket7.Type = "ThroughAll"

doc.recompute()
